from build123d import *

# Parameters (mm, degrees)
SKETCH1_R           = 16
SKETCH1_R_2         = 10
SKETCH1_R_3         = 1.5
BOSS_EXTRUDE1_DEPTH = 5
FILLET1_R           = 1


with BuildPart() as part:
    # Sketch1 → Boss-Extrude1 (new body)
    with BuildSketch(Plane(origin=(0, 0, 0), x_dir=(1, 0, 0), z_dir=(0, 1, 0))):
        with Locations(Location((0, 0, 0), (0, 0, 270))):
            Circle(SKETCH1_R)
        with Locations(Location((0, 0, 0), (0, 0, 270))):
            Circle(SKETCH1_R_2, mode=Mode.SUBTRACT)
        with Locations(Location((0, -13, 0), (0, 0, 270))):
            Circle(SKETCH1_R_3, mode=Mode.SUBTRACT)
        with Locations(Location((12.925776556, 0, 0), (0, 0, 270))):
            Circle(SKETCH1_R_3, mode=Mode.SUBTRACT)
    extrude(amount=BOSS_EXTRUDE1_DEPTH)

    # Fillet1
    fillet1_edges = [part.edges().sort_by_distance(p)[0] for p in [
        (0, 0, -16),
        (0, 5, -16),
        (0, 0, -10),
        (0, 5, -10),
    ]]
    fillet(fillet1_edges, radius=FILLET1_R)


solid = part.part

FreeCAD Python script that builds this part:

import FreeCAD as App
import Part
import Sketcher

V = App.Vector


def edges_at(feature, points):
    """Names of the edges that pass closest to the given points."""
    edges = feature.Shape.Edges
    near = lambda p: min(range(len(edges)), key=lambda i: edges[i].distToShape(Part.Vertex(*p))[0])
    return sorted({f"Edge{near(p) + 1}" for p in points})

doc = App.newDocument("Part")
body = doc.addObject("PartDesign::Body", "Body")

sketch1 = body.newObject("Sketcher::SketchObject", "Sketch")
sketch1.AttachmentSupport = (doc.getObject("XZ_Plane"), [""])
sketch1.MapMode = "FlatFace"
sketch1.addGeometry([
    Part.Circle(V(0, 0, 0), V(0, 0, 1), 16),
    Part.Circle(V(0, 0, 0), V(0, 0, 1), 10),
    Part.Circle(V(0, 13, 0), V(0, 0, 1), 1.5),
    Part.Circle(V(12.9, 0, 0), V(0, 0, 1), 1.5),
], False)
sketch1.addConstraint([
    Sketcher.Constraint("Coincident", 0, 3, -1, 1),
    Sketcher.Constraint("Coincident", 1, 3, -1, 1),
    Sketcher.Constraint("Equal", 2, 3),
    Sketcher.Constraint("PointOnObject", 2, 3, -2),
    Sketcher.Constraint("PointOnObject", 3, 3, -1),
    Sketcher.Constraint("Diameter", 0, 32.0),
    Sketcher.Constraint("Diameter", 1, 20.0),
    Sketcher.Constraint("Diameter", 2, 3.0),
    Sketcher.Constraint("DistanceY", -1, 1, 2, 3, 13.0),
    Sketcher.Constraint("DistanceX", -1, 1, 3, 3, 12.925777),
])
pad1 = body.newObject("PartDesign::Pad", "Pad")
pad1.Profile = sketch1
pad1.Length = 5
pad1.Reversed = True
doc.recompute()

fillet = body.newObject("PartDesign::Fillet", "Fillet")
fillet.Base = (pad1, edges_at(pad1, [
    (0, 0, -16),
    (0, 5, -16),
    (0, 0, -10),
    (0, 5, -10),
]))
fillet.Radius = 1

doc.recompute()
